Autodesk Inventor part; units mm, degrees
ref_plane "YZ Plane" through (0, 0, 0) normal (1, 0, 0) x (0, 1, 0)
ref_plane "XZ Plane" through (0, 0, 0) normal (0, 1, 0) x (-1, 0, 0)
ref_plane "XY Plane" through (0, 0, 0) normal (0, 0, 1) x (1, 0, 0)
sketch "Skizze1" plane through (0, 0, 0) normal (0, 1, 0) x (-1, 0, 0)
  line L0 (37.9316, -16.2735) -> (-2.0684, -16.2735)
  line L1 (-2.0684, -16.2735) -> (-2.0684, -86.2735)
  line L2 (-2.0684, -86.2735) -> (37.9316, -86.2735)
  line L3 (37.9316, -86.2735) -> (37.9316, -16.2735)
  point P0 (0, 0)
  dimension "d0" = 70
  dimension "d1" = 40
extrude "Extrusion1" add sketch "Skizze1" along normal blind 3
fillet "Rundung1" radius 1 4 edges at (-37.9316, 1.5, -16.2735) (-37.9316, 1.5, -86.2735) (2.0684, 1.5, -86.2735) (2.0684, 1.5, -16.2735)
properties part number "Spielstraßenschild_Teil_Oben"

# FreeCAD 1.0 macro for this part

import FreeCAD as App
import Part
import Sketcher

V = App.Vector


def edges_at(feature, points):
    """Names of the edges that pass closest to the given points."""
    edges = feature.Shape.Edges
    near = lambda p: min(range(len(edges)), key=lambda i: edges[i].distToShape(Part.Vertex(*p))[0])
    return sorted({f"Edge{near(p) + 1}" for p in points})


def add_polygon(sketch, points):
    """Adds a closed chain of lines whose ends are joined by coincident constraints."""
    first, n = sketch.GeometryCount, len(points)
    for a, b in zip(points, points[1:] + points[:1]):
        sketch.addGeometry(Part.LineSegment(App.Vector(*a, 0), App.Vector(*b, 0)), False)
    for i in range(n):
        sketch.addConstraint(Sketcher.Constraint("Coincident", first + i, 2, first + (i + 1) % n, 1))

doc = App.newDocument("Part")
body = doc.addObject("PartDesign::Body", "Body")

sketch1 = body.newObject("Sketcher::SketchObject", "Sketch")
sketch1.AttachmentSupport = (doc.getObject("XZ_Plane"), [""])
sketch1.MapMode = "FlatFace"
add_polygon(sketch1, [(-38, -86), (-38, -16), (2, -16), (2, -86)])
sketch1.addConstraint([
    Sketcher.Constraint("Vertical", 0),
    Sketcher.Constraint("Horizontal", 1),
    Sketcher.Constraint("Vertical", 2),
    Sketcher.Constraint("Horizontal", 3),
    Sketcher.Constraint("DistanceX", 1, 1, 1, 2, 40.0),
    Sketcher.Constraint("DistanceY", 0, 1, 0, 2, 70.0),
    Sketcher.Constraint("DistanceX", 0, 2, -1, 1, 37.9316),
    Sketcher.Constraint("DistanceY", 0, 2, -1, 1, 16.2735),
])
pad1 = body.newObject("PartDesign::Pad", "Pad")
pad1.Profile = sketch1
pad1.Length = 3
pad1.Reversed = True
doc.recompute()

fillet = body.newObject("PartDesign::Fillet", "Fillet")
fillet.Base = (pad1, edges_at(pad1, [
    (-37.932, 1.5, -16.273),
    (-37.932, 1.5, -86.273),
    (2.068, 1.5, -86.273),
    (2.068, 1.5, -16.273),
]))
fillet.Radius = 1

doc.recompute()
